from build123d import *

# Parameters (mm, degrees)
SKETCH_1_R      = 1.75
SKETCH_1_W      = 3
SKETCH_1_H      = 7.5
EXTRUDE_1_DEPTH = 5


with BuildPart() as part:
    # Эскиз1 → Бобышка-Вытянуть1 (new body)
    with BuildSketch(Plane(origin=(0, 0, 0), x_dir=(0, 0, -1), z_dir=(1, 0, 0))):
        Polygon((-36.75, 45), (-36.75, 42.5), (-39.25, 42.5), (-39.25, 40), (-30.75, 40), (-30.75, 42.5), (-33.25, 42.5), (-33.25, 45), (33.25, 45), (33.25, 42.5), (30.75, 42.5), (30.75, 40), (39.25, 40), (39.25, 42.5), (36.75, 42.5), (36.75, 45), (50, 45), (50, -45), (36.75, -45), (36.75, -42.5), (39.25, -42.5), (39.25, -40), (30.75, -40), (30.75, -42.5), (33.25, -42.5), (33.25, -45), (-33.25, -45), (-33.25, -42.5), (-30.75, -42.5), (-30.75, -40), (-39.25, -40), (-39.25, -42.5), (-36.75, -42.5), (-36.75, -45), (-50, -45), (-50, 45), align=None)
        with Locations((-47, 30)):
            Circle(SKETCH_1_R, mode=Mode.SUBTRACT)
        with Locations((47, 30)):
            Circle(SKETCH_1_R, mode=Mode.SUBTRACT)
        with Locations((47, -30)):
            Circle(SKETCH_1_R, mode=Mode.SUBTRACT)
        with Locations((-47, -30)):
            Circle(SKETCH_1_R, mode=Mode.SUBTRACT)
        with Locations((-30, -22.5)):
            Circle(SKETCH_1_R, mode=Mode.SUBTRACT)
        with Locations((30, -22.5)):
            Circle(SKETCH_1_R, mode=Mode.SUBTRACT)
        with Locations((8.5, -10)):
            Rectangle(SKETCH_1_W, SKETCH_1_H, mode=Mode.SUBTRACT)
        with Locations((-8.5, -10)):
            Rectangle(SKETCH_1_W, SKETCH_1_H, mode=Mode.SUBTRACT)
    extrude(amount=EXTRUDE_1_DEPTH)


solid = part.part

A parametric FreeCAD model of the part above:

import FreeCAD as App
import Part
import Sketcher

V = App.Vector
Q = App.Units.Quantity


def add_polygon(sketch, points):
    """Adds a closed chain of lines whose ends are joined by coincident constraints."""
    first, n = sketch.GeometryCount, len(points)
    for a, b in zip(points, points[1:] + points[:1]):
        sketch.addGeometry(Part.LineSegment(App.Vector(*a, 0), App.Vector(*b, 0)), False)
    for i in range(n):
        sketch.addConstraint(Sketcher.Constraint("Coincident", first + i, 2, first + (i + 1) % n, 1))

doc = App.newDocument("Part")
body = doc.addObject("PartDesign::Body", "Body")

# Sketch on YZ plane
sketch1 = body.newObject("Sketcher::SketchObject", "Sketch")
sketch1.AttachmentSupport = (doc.getObject("YZ_Plane"), [""])
sketch1.MapMode = "FlatFace"
add_polygon(sketch1, [(42.5, 36.8), (45, 36.8), (45, 50), (-45, 50), (-45, 36.8), (-42.5, 36.8), (-42.5, 39.2), (-40, 39.2), (-40, 30.8), (-42.5, 30.8), (-42.5, 33.2), (-45, 33.2), (-45, -33.2), (-42.5, -33.2), (-42.5, -30.8), (-40, -30.8), (-40, -39.2), (-42.5, -39.2), (-42.5, -36.8), (-45, -36.8), (-45, -50), (45, -50), (45, -36.8), (42.5, -36.8), (42.5, -39.2), (40, -39.2), (40, -30.8), (42.5, -30.8), (42.5, -33.2), (45, -33.2), (45, 33.2), (42.5, 33.2), (42.5, 30.8), (40, 30.8), (40, 39.2), (42.5, 39.2)])  # lines 0-35
sketch1.addGeometry(Part.Circle(V(-30, -47, 0), V(0, 0, 1), 1.8), False)  # 36
sketch1.addGeometry(Part.Circle(V(-22.5, -30, 0), V(0, 0, 1), 1.8), False)  # 37
add_polygon(sketch1, [(-13.8, -7), (-6.2, -7), (-6.2, -10), (-13.8, -10)])  # lines 38-41
sketch1.addGeometry(Part.Circle(V(-30, 47, 0), V(0, 0, 1), 1.8), False)  # 42
sketch1.addGeometry(Part.Circle(V(-22.5, 30, 0), V(0, 0, 1), 1.8), False)  # 43
add_polygon(sketch1, [(-13.8, 10), (-6.2, 10), (-6.2, 7), (-13.8, 7)])  # lines 44-47
sketch1.addGeometry(Part.Circle(V(30, -47, 0), V(0, 0, 1), 1.8), False)  # 48
sketch1.addGeometry(Part.Circle(V(30, 47, 0), V(0, 0, 1), 1.8), False)  # 49
sketch1.addConstraint([
    Sketcher.Constraint("Horizontal", 0),
    Sketcher.Constraint("Vertical", 1),
    Sketcher.Constraint("Horizontal", 2),
    Sketcher.Constraint("Vertical", 3),
    Sketcher.Constraint("Horizontal", 4),
    Sketcher.Constraint("Vertical", 5),
    Sketcher.Constraint("Horizontal", 6),
    Sketcher.Constraint("Vertical", 7),
    Sketcher.Constraint("Horizontal", 8),
    Sketcher.Constraint("Vertical", 9),
    Sketcher.Constraint("Horizontal", 10),
    Sketcher.Constraint("Vertical", 11),
    Sketcher.Constraint("Horizontal", 12),
    Sketcher.Constraint("Vertical", 13),
    Sketcher.Constraint("Horizontal", 14),
    Sketcher.Constraint("Vertical", 15),
    Sketcher.Constraint("Horizontal", 16),
    Sketcher.Constraint("Vertical", 17),
    Sketcher.Constraint("Horizontal", 18),
    Sketcher.Constraint("Vertical", 19),
    Sketcher.Constraint("Horizontal", 20),
    Sketcher.Constraint("Vertical", 21),
    Sketcher.Constraint("Horizontal", 22),
    Sketcher.Constraint("Vertical", 23),
    Sketcher.Constraint("Horizontal", 24),
    Sketcher.Constraint("Vertical", 25),
    Sketcher.Constraint("Horizontal", 26),
    Sketcher.Constraint("Vertical", 27),
    Sketcher.Constraint("Horizontal", 28),
    Sketcher.Constraint("Vertical", 29),
    Sketcher.Constraint("Horizontal", 30),
    Sketcher.Constraint("Vertical", 31),
    Sketcher.Constraint("Horizontal", 32),
    Sketcher.Constraint("Vertical", 33),
    Sketcher.Constraint("Horizontal", 34),
    Sketcher.Constraint("Vertical", 35),
    Sketcher.Constraint("Horizontal", 38),
    Sketcher.Constraint("Vertical", 39),
    Sketcher.Constraint("Horizontal", 40),
    Sketcher.Constraint("Vertical", 41),
    Sketcher.Constraint("Horizontal", 44),
    Sketcher.Constraint("Vertical", 45),
    Sketcher.Constraint("Horizontal", 46),
    Sketcher.Constraint("Vertical", 47),
    Sketcher.Constraint("Equal", 36, 37),
    Sketcher.Constraint("Equal", 37, 42),
    Sketcher.Constraint("Equal", 42, 43),
    Sketcher.Constraint("Equal", 43, 48),
    Sketcher.Constraint("Equal", 48, 49),
    Sketcher.Constraint("Symmetric", 42, 3, 48, 3, -1, 1),
    Sketcher.Constraint("Symmetric", 36, 3, 49, 3, -1, 1),
    Sketcher.Constraint("Symmetric", 0, 2, 18, 2, -1, 1),
    Sketcher.Constraint("Symmetric", 2, 2, 20, 2, -1, 1),
    Sketcher.Constraint("Symmetric", 4, 2, 22, 2, -1, 1),
    Sketcher.Constraint("Symmetric", 6, 2, 24, 2, -1, 1),
    Sketcher.Constraint("Symmetric", 8, 2, 26, 2, -1, 1),
    Sketcher.Constraint("Symmetric", 10, 2, 28, 2, -1, 1),
    Sketcher.Constraint("Symmetric", 12, 2, 30, 2, -1, 1),
    Sketcher.Constraint("Symmetric", 14, 2, 32, 2, -1, 1),
    Sketcher.Constraint("Symmetric", 16, 2, 34, 2, -1, 1),
    Sketcher.Constraint("Symmetric", 36, 3, 48, 3, -2),
    Sketcher.Constraint("Symmetric", 0, 2, 3, 2, -2),
    Sketcher.Constraint("Symmetric", 16, 2, 23, 2, -2),
    Sketcher.Constraint("Symmetric", 14, 2, 25, 2, -2),
    Sketcher.Constraint("Symmetric", 12, 2, 27, 2, -2),
    Sketcher.Constraint("Symmetric", 37, 3, 43, 3, -1),
    Sketcher.Constraint("Symmetric", 39, 2, 44, 2, -1),
    Sketcher.Constraint("Symmetric", 41, 2, 46, 2, -1),
    Sketcher.Constraint("Vertical", 5, 2, 8, 2),
    Sketcher.Constraint("Vertical", 3, 2, 10, 2),
    Sketcher.Constraint("Equal", 4, 6),
    Sketcher.Constraint("Equal", 34, 5),
    Sketcher.Constraint("Equal", 5, 9),
    Sketcher.Constraint("Diameter", 36, Q("3.5 mm")),
    Sketcher.Constraint("DistanceX", 2, 2, 2, 1, Q("90 mm")),
    Sketcher.Constraint("DistanceY", 39, 2, 39, 1, Q("3 mm")),
    Sketcher.Constraint("DistanceX", 0, 1, 0, 2, Q("2.5 mm")),
    Sketcher.Constraint("DistanceX", 38, 1, 38, 2, Q("7.5 mm")),
    Sketcher.Constraint("DistanceY", 7, 2, 7, 1, Q("8.5 mm")),
    Sketcher.Constraint("DistanceY", 11, 2, 11, 1, Q("66.5 mm")),
    Sketcher.Constraint("DistanceX", 36, 3, -1, 1, Q("30 mm")),
    Sketcher.Constraint("DistanceY", 36, 3, -1, 1, Q("47 mm")),
    Sketcher.Constraint("DistanceY", 37, 3, -1, 1, Q("30 mm")),
    Sketcher.Constraint("DistanceY", -1, 1, 1, 2, Q("50 mm")),
    Sketcher.Constraint("DistanceY", 38, 2, -1, 1, Q("7 mm")),
    Sketcher.Constraint("DistanceX", 4, 2, 43, 3, Q("20 mm")),
    Sketcher.Constraint("DistanceX", 38, 2, -1, 1, Q("6.25 mm")),
])
pad1 = body.newObject("PartDesign::Pad", "Pad")
pad1.Profile = sketch1
pad1.Length = 5

doc.recompute()
